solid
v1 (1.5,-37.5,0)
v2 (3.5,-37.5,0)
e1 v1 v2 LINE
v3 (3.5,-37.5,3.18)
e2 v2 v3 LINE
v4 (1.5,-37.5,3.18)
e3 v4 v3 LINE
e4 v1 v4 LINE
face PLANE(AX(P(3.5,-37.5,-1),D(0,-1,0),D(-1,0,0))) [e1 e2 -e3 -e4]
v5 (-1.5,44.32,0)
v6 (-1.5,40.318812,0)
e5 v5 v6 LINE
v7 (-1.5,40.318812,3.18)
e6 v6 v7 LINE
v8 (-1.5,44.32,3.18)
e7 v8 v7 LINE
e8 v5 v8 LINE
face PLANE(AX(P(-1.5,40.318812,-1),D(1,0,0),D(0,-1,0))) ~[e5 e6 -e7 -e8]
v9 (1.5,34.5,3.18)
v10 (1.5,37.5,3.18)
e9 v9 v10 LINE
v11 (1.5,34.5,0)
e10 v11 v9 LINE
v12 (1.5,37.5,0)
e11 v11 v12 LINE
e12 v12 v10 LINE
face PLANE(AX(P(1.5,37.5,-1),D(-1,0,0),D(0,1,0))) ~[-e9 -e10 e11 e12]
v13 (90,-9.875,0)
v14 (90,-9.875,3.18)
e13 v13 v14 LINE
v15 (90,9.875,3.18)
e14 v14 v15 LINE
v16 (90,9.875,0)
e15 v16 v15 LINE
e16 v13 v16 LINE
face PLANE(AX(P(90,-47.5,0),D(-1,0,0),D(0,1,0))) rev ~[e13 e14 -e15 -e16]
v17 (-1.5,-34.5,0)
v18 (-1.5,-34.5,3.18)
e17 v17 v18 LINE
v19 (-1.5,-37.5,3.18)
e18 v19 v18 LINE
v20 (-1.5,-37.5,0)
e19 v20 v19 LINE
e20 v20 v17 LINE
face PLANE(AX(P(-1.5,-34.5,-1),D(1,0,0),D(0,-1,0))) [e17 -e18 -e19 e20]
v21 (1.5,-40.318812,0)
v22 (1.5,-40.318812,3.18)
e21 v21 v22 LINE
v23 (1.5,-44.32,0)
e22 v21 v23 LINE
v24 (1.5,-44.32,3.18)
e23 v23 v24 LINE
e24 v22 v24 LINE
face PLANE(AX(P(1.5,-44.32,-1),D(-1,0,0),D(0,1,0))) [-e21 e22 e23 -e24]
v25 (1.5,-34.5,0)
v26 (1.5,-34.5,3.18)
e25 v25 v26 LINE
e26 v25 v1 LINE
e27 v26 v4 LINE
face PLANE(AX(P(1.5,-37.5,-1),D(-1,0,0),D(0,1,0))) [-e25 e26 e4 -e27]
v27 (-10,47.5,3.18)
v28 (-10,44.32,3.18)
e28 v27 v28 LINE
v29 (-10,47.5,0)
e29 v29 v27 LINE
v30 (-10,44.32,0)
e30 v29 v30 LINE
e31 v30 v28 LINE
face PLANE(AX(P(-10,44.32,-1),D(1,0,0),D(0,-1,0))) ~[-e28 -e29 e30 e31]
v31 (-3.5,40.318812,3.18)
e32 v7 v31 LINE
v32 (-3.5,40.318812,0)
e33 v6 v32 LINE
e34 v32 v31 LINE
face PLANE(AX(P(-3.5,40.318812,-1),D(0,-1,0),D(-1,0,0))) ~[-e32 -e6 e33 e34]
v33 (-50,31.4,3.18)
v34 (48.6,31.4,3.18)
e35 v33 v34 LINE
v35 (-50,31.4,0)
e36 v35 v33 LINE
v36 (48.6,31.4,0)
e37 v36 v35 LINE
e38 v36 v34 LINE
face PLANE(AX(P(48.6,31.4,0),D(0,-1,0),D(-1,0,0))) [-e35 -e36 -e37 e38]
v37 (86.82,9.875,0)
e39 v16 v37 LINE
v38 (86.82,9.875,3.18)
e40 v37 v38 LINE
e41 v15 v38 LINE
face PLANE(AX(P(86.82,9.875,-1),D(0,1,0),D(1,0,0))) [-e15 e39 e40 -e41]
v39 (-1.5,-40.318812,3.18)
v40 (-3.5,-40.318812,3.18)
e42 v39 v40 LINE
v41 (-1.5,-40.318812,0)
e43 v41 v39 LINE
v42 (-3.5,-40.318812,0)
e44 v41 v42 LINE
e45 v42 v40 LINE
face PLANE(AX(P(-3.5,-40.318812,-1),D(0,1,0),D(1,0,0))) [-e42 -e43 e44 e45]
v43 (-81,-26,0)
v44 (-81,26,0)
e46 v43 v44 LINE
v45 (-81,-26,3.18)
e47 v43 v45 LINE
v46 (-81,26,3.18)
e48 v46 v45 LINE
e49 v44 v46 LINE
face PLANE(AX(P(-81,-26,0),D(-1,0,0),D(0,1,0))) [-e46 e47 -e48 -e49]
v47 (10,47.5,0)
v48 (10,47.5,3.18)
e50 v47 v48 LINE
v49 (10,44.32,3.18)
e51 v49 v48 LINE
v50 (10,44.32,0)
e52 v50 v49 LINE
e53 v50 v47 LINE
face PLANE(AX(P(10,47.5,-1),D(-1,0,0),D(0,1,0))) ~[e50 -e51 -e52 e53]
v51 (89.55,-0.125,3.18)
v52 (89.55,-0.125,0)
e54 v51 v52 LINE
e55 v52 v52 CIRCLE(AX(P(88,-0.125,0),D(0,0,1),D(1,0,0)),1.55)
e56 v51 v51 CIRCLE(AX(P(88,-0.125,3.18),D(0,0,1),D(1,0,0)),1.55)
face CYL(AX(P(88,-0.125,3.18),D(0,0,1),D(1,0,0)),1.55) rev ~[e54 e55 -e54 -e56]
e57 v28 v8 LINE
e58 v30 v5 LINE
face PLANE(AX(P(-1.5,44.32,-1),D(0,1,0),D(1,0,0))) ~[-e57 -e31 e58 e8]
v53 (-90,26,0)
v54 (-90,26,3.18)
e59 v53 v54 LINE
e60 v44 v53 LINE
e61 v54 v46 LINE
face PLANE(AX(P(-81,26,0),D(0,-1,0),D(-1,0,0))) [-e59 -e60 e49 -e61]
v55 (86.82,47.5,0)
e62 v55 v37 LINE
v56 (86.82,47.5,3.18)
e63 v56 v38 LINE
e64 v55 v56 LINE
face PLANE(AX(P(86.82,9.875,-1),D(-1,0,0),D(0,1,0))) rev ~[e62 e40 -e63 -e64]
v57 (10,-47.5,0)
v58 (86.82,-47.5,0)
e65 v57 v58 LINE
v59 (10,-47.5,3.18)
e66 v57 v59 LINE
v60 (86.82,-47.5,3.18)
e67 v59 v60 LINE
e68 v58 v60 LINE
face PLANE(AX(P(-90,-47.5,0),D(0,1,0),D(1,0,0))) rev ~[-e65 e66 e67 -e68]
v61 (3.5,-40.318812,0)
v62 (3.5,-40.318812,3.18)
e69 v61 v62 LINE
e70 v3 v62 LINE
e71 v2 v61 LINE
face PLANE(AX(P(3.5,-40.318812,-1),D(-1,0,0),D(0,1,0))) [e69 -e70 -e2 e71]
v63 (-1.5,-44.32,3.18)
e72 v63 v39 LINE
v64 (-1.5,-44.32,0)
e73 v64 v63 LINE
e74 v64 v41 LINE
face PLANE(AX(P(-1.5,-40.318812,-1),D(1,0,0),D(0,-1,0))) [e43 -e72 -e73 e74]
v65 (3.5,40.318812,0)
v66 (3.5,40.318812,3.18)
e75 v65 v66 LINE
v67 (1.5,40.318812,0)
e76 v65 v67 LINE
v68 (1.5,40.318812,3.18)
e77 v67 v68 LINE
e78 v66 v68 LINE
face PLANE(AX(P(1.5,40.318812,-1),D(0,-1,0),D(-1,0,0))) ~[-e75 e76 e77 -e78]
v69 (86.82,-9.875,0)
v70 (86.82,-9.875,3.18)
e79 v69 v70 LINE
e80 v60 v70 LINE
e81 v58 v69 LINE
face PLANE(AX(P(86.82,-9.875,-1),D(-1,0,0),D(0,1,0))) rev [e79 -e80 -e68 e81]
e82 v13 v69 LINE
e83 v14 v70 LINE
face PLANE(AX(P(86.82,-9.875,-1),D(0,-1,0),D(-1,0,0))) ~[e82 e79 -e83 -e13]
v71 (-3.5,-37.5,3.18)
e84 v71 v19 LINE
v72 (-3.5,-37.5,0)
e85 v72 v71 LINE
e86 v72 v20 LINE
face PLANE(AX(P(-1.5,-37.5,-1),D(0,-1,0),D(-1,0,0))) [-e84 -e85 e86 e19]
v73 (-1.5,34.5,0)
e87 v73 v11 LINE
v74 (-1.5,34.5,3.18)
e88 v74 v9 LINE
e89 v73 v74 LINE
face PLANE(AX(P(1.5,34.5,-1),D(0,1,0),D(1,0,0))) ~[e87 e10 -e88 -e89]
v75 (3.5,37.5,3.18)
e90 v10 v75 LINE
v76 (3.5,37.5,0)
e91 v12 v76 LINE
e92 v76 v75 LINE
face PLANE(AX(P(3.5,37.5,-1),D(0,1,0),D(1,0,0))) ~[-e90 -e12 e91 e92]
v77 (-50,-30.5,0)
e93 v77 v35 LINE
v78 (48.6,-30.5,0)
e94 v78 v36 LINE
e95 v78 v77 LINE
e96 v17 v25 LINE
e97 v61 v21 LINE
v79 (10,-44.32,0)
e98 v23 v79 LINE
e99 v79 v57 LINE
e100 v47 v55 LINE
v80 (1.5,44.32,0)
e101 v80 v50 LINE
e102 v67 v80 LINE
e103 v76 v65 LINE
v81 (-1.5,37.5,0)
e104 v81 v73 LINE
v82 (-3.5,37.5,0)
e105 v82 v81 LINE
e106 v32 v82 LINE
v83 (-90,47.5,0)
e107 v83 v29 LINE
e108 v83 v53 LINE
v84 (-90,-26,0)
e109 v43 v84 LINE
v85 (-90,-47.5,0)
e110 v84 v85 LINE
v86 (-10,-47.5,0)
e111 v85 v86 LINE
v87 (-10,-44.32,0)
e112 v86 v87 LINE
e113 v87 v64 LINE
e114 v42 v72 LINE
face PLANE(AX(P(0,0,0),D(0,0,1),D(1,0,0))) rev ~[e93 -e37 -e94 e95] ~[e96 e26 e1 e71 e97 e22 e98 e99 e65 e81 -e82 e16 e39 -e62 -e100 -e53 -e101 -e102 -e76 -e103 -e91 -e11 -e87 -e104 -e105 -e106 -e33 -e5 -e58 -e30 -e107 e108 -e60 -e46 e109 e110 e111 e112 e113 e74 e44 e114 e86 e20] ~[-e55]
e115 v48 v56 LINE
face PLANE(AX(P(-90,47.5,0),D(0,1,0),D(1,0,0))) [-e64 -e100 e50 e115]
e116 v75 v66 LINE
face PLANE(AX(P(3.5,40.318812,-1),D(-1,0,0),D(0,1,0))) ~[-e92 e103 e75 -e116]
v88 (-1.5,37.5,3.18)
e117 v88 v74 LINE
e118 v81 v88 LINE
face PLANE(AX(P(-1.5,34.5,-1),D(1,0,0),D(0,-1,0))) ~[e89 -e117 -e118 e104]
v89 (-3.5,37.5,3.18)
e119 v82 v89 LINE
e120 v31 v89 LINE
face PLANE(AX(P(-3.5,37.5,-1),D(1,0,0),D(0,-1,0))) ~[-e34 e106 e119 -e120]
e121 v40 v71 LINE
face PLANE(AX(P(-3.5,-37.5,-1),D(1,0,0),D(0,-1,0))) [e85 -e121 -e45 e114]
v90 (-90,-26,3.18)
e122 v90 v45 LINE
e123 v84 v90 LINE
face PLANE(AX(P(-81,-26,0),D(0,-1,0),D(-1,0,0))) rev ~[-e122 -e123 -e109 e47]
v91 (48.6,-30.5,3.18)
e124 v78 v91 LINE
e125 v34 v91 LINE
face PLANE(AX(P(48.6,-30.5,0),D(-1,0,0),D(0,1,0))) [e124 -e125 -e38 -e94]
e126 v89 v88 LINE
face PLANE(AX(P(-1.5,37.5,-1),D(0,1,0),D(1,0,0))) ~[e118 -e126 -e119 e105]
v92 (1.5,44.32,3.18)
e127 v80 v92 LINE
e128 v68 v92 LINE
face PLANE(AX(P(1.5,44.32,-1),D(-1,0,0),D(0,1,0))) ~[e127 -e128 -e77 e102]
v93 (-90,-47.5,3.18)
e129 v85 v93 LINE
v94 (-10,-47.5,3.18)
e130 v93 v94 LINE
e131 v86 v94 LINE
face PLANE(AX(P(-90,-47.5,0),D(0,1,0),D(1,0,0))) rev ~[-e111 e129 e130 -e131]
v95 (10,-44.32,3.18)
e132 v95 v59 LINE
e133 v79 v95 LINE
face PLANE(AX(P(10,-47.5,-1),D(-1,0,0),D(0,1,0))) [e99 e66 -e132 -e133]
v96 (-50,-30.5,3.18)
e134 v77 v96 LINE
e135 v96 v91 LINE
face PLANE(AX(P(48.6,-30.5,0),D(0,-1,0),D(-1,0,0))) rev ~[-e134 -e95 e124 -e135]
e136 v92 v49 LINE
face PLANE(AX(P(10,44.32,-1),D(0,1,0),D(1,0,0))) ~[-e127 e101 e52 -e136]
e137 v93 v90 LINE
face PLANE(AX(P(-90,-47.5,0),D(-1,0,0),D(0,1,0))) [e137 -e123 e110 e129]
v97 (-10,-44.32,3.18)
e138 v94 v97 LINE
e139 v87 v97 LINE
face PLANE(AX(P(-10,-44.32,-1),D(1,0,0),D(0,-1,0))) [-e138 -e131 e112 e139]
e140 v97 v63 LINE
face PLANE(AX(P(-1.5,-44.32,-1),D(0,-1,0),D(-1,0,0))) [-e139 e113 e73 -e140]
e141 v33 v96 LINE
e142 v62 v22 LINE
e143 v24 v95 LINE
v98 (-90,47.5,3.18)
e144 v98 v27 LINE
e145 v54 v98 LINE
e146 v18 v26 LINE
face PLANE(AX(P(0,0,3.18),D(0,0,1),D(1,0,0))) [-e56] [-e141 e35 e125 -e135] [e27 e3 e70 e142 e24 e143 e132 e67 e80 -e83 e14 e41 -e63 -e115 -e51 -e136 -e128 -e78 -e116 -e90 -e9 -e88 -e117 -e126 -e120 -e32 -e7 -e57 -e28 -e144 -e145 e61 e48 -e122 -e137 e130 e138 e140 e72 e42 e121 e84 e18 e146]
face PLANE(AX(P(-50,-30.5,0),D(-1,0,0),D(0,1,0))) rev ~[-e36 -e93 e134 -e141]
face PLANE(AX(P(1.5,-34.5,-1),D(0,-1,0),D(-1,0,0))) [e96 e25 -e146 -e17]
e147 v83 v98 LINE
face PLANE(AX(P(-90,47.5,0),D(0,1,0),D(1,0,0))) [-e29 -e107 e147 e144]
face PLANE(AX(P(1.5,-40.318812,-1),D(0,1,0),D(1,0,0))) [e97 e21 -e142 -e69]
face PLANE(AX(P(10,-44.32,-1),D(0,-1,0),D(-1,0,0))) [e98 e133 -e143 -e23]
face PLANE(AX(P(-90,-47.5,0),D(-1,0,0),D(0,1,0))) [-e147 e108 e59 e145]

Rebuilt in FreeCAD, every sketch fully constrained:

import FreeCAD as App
import Part
import Sketcher

doc = App.newDocument("Part")
body = doc.addObject("PartDesign::Body", "Body")

sketch1 = body.newObject("Sketcher::SketchObject", "Sketch")
sketch1.AttachmentSupport = (doc.getObject("XY_Plane"), [""])
sketch1.MapMode = "FlatFace"
sketch1.addGeometry([
    Part.LineSegment(App.Vector(-90, 48, 0), App.Vector(-90, -48, 0)),
    Part.LineSegment(App.Vector(-90, -48, 0), App.Vector(90, -48, 0)),
    Part.LineSegment(App.Vector(90, -48, 0), App.Vector(90, 48, 0)),
    Part.LineSegment(App.Vector(90, 48, 0), App.Vector(-90, 48, 0)),
], False)
sketch1.addConstraint([
    Sketcher.Constraint("Coincident", 0, 2, 1, 1),
    Sketcher.Constraint("Coincident", 1, 2, 2, 1),
    Sketcher.Constraint("Coincident", 2, 2, 3, 1),
    Sketcher.Constraint("Coincident", 3, 2, 0, 1),
    Sketcher.Constraint("Vertical", 0),
    Sketcher.Constraint("Horizontal", 1),
    Sketcher.Constraint("Vertical", 2),
    Sketcher.Constraint("Horizontal", 3),
    Sketcher.Constraint("Symmetric", 0, 2, 2, 2, -1, 1),
    Sketcher.Constraint("DistanceX", 1, 1, 1, 2, 180.0),
    Sketcher.Constraint("DistanceY", 0, 2, 0, 1, 95.0),
])
pad1 = body.newObject("PartDesign::Pad", "Pad")
pad1.Profile = sketch1
pad1.Length = 3.18

sketch2 = body.newObject("Sketcher::SketchObject", "Sketch001")
sketch2.AttachmentSupport = (doc.getObject("XY_Plane"), [""])
sketch2.MapMode = "FlatFace"
sketch2.AttachmentOffset = App.Placement(App.Vector(0, 0, -1), App.Rotation())
sketch2.addGeometry([
    Part.LineSegment(App.Vector(86.8, 47.5, 0), App.Vector(86.8, 9.9, 0)),
    Part.LineSegment(App.Vector(86.8, 9.9, 0), App.Vector(90, 9.9, 0)),
    Part.LineSegment(App.Vector(90, 9.9, 0), App.Vector(90, 47.5, 0)),
    Part.LineSegment(App.Vector(90, 47.5, 0), App.Vector(86.8, 47.5, 0)),
], False)
sketch2.addConstraint([
    Sketcher.Constraint("Coincident", 0, 2, 1, 1),
    Sketcher.Constraint("Coincident", 1, 2, 2, 1),
    Sketcher.Constraint("Coincident", 2, 2, 3, 1),
    Sketcher.Constraint("Coincident", 3, 2, 0, 1),
    Sketcher.Constraint("Vertical", 0),
    Sketcher.Constraint("Horizontal", 1),
    Sketcher.Constraint("Vertical", 2),
    Sketcher.Constraint("Horizontal", 3),
    Sketcher.Constraint("DistanceX", -1, 1, 1, 2, 90.0),
    Sketcher.Constraint("DistanceX", 1, 1, 1, 2, 3.18),
    Sketcher.Constraint("DistanceY", -1, 1, 2, 2, 47.5),
    Sketcher.Constraint("DistanceY", 0, 2, 0, 1, 37.625),
])
pocket1 = body.newObject("PartDesign::Pocket", "Pocket")
pocket1.Profile = sketch2
pocket1.Length = 5.18
pocket1.Reversed = True
doc.recompute()

mirrored = body.newObject("PartDesign::Mirrored", "Mirrored")
mirrored.Originals = [pocket1]
mirrored.MirrorPlane = (doc.getObject("XZ_Plane"), [""])
body.Tip = mirrored

sketch3 = body.newObject("Sketcher::SketchObject", "Sketch002")
sketch3.AttachmentSupport = (doc.getObject("XY_Plane"), [""])
sketch3.MapMode = "FlatFace"
sketch3.AttachmentOffset = App.Placement(App.Vector(0, 0, 3.18), App.Rotation())
sketch3.addGeometry(Part.Circle(App.Vector(88, -0.1, 0), App.Vector(0, 0, 1), 1.6), False)
sketch3.addConstraint([
    Sketcher.Constraint("Diameter", 0, 3.1),
    Sketcher.Constraint("DistanceX", -1, 1, 0, 3, 88.0),
    Sketcher.Constraint("DistanceY", 0, 3, -1, 1, 0.125),
])
pocket2 = body.newObject("PartDesign::Pocket", "Pocket001")
pocket2.Profile = sketch3
pocket2.Type = "ThroughAll"
pocket2.Midplane = True

sketch4 = body.newObject("Sketcher::SketchObject", "Sketch003")
sketch4.AttachmentSupport = (doc.getObject("XY_Plane"), [""])
sketch4.MapMode = "FlatFace"
sketch4.AttachmentOffset = App.Placement(App.Vector(0, 0, -1), App.Rotation())
sketch4.addGeometry([
    Part.LineSegment(App.Vector(-10, -47.5, 0), App.Vector(10, -47.5, 0)),
    Part.LineSegment(App.Vector(10, -47.5, 0), App.Vector(10, -44.3, 0)),
    Part.LineSegment(App.Vector(10, -44.3, 0), App.Vector(1.5, -44.3, 0)),
    Part.LineSegment(App.Vector(1.5, -44.3, 0), App.Vector(1.5, -40.3, 0)),
    Part.LineSegment(App.Vector(1.5, -40.3, 0), App.Vector(3.5, -40.3, 0)),
    Part.LineSegment(App.Vector(3.5, -40.3, 0), App.Vector(3.5, -37.5, 0)),
    Part.LineSegment(App.Vector(3.5, -37.5, 0), App.Vector(1.5, -37.5, 0)),
    Part.LineSegment(App.Vector(1.5, -37.5, 0), App.Vector(1.5, -34.5, 0)),
    Part.LineSegment(App.Vector(1.5, -34.5, 0), App.Vector(-1.5, -34.5, 0)),
    Part.LineSegment(App.Vector(-1.5, -34.5, 0), App.Vector(-1.5, -37.5, 0)),
    Part.LineSegment(App.Vector(-1.5, -37.5, 0), App.Vector(-3.5, -37.5, 0)),
    Part.LineSegment(App.Vector(-3.5, -37.5, 0), App.Vector(-3.5, -40.3, 0)),
    Part.LineSegment(App.Vector(-3.5, -40.3, 0), App.Vector(-1.5, -40.3, 0)),
    Part.LineSegment(App.Vector(-1.5, -40.3, 0), App.Vector(-1.5, -44.3, 0)),
    Part.LineSegment(App.Vector(-1.5, -44.3, 0), App.Vector(-10, -44.3, 0)),
    Part.LineSegment(App.Vector(-10, -44.3, 0), App.Vector(-10, -47.5, 0)),
], False)
sketch4.addConstraint([
    Sketcher.Constraint("Coincident", 0, 2, 1, 1),
    Sketcher.Constraint("Coincident", 1, 2, 2, 1),
    Sketcher.Constraint("Coincident", 2, 2, 3, 1),
    Sketcher.Constraint("Coincident", 3, 2, 4, 1),
    Sketcher.Constraint("Coincident", 4, 2, 5, 1),
    Sketcher.Constraint("Coincident", 5, 2, 6, 1),
    Sketcher.Constraint("Coincident", 6, 2, 7, 1),
    Sketcher.Constraint("Coincident", 7, 2, 8, 1),
    Sketcher.Constraint("Coincident", 8, 2, 9, 1),
    Sketcher.Constraint("Coincident", 9, 2, 10, 1),
    Sketcher.Constraint("Coincident", 10, 2, 11, 1),
    Sketcher.Constraint("Coincident", 11, 2, 12, 1),
    Sketcher.Constraint("Coincident", 12, 2, 13, 1),
    Sketcher.Constraint("Coincident", 13, 2, 14, 1),
    Sketcher.Constraint("Coincident", 14, 2, 15, 1),
    Sketcher.Constraint("Coincident", 15, 2, 0, 1),
    Sketcher.Constraint("Horizontal", 0),
    Sketcher.Constraint("Vertical", 1),
    Sketcher.Constraint("Horizontal", 2),
    Sketcher.Constraint("Vertical", 3),
    Sketcher.Constraint("Horizontal", 4),
    Sketcher.Constraint("Vertical", 5),
    Sketcher.Constraint("Horizontal", 6),
    Sketcher.Constraint("Vertical", 7),
    Sketcher.Constraint("Horizontal", 8),
    Sketcher.Constraint("Vertical", 9),
    Sketcher.Constraint("Horizontal", 10),
    Sketcher.Constraint("Vertical", 11),
    Sketcher.Constraint("Horizontal", 12),
    Sketcher.Constraint("Vertical", 13),
    Sketcher.Constraint("Horizontal", 14),
    Sketcher.Constraint("Vertical", 15),
    Sketcher.Constraint("Symmetric", 6, 2, 9, 2, -2),
    Sketcher.Constraint("Symmetric", 4, 2, 11, 2, -2),
    Sketcher.Constraint("Symmetric", 2, 2, 13, 2, -2),
    Sketcher.Constraint("Vertical", 3, 2, 6, 2),
    Sketcher.Constraint("Equal", 2, 14),
    Sketcher.Constraint("Equal", 8, 7),
    Sketcher.Constraint("DistanceX", 0, 1, 0, 2, 20.0),
    Sketcher.Constraint("DistanceX", 4, 1, 4, 2, 2.0),
    Sketcher.Constraint("DistanceX", 8, 2, 8, 1, 3.0),
    Sketcher.Constraint("DistanceY", 0, 2, 5, 2, 10.0),
    Sketcher.Constraint("DistanceY", 1, 1, 1, 2, 3.18),
    Sketcher.Constraint("DistanceY", 0, 2, -1, 1, 47.5),
    Sketcher.Constraint("DistanceY", 3, 1, 3, 2, 4.001188),
])
pocket3 = body.newObject("PartDesign::Pocket", "Pocket002")
pocket3.Profile = sketch4
pocket3.Length = 5.18
pocket3.Reversed = True
doc.recompute()

mirrored2 = body.newObject("PartDesign::Mirrored", "Mirrored001")
mirrored2.Originals = [pocket3]
mirrored2.MirrorPlane = (doc.getObject("XZ_Plane"), [""])
body.Tip = mirrored2

sketch5 = body.newObject("Sketcher::SketchObject", "Sketch004")
sketch5.AttachmentSupport = (doc.getObject("XY_Plane"), [""])
sketch5.MapMode = "FlatFace"
sketch5.addGeometry([
    Part.LineSegment(App.Vector(49, 31, 0), App.Vector(49, -30, 0)),
    Part.LineSegment(App.Vector(49, -30, 0), App.Vector(-50, -30, 0)),
    Part.LineSegment(App.Vector(-50, -30, 0), App.Vector(-50, 31, 0)),
    Part.LineSegment(App.Vector(-50, 31, 0), App.Vector(49, 31, 0)),
], False)
sketch5.addConstraint([
    Sketcher.Constraint("Coincident", 0, 2, 1, 1),
    Sketcher.Constraint("Coincident", 1, 2, 2, 1),
    Sketcher.Constraint("Coincident", 2, 2, 3, 1),
    Sketcher.Constraint("Coincident", 3, 2, 0, 1),
    Sketcher.Constraint("Vertical", 0),
    Sketcher.Constraint("Horizontal", 1),
    Sketcher.Constraint("Vertical", 2),
    Sketcher.Constraint("Horizontal", 3),
    Sketcher.Constraint("DistanceX", 1, 2, 1, 1, 98.6),
    Sketcher.Constraint("DistanceY", 0, 2, 0, 1, 61.9),
    Sketcher.Constraint("DistanceX", 1, 2, -1, 1, 50.0),
    Sketcher.Constraint("DistanceY", 0, 2, -1, 1, 30.5),
])
pocket4 = body.newObject("PartDesign::Pocket", "Pocket003")
pocket4.Profile = sketch5
pocket4.Type = "ThroughAll"
pocket4.Midplane = True

sketch6 = body.newObject("Sketcher::SketchObject", "Sketch005")
sketch6.AttachmentSupport = (doc.getObject("XY_Plane"), [""])
sketch6.MapMode = "FlatFace"
sketch6.addGeometry([
    Part.LineSegment(App.Vector(-81, 26, 0), App.Vector(-81, -26, 0)),
    Part.LineSegment(App.Vector(-81, -26, 0), App.Vector(-90, -26, 0)),
    Part.LineSegment(App.Vector(-90, -26, 0), App.Vector(-90, 26, 0)),
    Part.LineSegment(App.Vector(-90, 26, 0), App.Vector(-81, 26, 0)),
], False)
sketch6.addConstraint([
    Sketcher.Constraint("Coincident", 0, 2, 1, 1),
    Sketcher.Constraint("Coincident", 1, 2, 2, 1),
    Sketcher.Constraint("Coincident", 2, 2, 3, 1),
    Sketcher.Constraint("Coincident", 3, 2, 0, 1),
    Sketcher.Constraint("Vertical", 0),
    Sketcher.Constraint("Horizontal", 1),
    Sketcher.Constraint("Vertical", 2),
    Sketcher.Constraint("Horizontal", 3),
    Sketcher.Constraint("DistanceX", 1, 2, 1, 1, 9.0),
    Sketcher.Constraint("DistanceY", 0, 2, 0, 1, 52.0),
    Sketcher.Constraint("DistanceX", 0, 2, -1, 1, 81.0),
    Sketcher.Constraint("DistanceY", 0, 2, -1, 1, 26.0),
])
pocket5 = body.newObject("PartDesign::Pocket", "Pocket004")
pocket5.Profile = sketch6
pocket5.Type = "ThroughAll"
pocket5.Midplane = True

doc.recompute()
